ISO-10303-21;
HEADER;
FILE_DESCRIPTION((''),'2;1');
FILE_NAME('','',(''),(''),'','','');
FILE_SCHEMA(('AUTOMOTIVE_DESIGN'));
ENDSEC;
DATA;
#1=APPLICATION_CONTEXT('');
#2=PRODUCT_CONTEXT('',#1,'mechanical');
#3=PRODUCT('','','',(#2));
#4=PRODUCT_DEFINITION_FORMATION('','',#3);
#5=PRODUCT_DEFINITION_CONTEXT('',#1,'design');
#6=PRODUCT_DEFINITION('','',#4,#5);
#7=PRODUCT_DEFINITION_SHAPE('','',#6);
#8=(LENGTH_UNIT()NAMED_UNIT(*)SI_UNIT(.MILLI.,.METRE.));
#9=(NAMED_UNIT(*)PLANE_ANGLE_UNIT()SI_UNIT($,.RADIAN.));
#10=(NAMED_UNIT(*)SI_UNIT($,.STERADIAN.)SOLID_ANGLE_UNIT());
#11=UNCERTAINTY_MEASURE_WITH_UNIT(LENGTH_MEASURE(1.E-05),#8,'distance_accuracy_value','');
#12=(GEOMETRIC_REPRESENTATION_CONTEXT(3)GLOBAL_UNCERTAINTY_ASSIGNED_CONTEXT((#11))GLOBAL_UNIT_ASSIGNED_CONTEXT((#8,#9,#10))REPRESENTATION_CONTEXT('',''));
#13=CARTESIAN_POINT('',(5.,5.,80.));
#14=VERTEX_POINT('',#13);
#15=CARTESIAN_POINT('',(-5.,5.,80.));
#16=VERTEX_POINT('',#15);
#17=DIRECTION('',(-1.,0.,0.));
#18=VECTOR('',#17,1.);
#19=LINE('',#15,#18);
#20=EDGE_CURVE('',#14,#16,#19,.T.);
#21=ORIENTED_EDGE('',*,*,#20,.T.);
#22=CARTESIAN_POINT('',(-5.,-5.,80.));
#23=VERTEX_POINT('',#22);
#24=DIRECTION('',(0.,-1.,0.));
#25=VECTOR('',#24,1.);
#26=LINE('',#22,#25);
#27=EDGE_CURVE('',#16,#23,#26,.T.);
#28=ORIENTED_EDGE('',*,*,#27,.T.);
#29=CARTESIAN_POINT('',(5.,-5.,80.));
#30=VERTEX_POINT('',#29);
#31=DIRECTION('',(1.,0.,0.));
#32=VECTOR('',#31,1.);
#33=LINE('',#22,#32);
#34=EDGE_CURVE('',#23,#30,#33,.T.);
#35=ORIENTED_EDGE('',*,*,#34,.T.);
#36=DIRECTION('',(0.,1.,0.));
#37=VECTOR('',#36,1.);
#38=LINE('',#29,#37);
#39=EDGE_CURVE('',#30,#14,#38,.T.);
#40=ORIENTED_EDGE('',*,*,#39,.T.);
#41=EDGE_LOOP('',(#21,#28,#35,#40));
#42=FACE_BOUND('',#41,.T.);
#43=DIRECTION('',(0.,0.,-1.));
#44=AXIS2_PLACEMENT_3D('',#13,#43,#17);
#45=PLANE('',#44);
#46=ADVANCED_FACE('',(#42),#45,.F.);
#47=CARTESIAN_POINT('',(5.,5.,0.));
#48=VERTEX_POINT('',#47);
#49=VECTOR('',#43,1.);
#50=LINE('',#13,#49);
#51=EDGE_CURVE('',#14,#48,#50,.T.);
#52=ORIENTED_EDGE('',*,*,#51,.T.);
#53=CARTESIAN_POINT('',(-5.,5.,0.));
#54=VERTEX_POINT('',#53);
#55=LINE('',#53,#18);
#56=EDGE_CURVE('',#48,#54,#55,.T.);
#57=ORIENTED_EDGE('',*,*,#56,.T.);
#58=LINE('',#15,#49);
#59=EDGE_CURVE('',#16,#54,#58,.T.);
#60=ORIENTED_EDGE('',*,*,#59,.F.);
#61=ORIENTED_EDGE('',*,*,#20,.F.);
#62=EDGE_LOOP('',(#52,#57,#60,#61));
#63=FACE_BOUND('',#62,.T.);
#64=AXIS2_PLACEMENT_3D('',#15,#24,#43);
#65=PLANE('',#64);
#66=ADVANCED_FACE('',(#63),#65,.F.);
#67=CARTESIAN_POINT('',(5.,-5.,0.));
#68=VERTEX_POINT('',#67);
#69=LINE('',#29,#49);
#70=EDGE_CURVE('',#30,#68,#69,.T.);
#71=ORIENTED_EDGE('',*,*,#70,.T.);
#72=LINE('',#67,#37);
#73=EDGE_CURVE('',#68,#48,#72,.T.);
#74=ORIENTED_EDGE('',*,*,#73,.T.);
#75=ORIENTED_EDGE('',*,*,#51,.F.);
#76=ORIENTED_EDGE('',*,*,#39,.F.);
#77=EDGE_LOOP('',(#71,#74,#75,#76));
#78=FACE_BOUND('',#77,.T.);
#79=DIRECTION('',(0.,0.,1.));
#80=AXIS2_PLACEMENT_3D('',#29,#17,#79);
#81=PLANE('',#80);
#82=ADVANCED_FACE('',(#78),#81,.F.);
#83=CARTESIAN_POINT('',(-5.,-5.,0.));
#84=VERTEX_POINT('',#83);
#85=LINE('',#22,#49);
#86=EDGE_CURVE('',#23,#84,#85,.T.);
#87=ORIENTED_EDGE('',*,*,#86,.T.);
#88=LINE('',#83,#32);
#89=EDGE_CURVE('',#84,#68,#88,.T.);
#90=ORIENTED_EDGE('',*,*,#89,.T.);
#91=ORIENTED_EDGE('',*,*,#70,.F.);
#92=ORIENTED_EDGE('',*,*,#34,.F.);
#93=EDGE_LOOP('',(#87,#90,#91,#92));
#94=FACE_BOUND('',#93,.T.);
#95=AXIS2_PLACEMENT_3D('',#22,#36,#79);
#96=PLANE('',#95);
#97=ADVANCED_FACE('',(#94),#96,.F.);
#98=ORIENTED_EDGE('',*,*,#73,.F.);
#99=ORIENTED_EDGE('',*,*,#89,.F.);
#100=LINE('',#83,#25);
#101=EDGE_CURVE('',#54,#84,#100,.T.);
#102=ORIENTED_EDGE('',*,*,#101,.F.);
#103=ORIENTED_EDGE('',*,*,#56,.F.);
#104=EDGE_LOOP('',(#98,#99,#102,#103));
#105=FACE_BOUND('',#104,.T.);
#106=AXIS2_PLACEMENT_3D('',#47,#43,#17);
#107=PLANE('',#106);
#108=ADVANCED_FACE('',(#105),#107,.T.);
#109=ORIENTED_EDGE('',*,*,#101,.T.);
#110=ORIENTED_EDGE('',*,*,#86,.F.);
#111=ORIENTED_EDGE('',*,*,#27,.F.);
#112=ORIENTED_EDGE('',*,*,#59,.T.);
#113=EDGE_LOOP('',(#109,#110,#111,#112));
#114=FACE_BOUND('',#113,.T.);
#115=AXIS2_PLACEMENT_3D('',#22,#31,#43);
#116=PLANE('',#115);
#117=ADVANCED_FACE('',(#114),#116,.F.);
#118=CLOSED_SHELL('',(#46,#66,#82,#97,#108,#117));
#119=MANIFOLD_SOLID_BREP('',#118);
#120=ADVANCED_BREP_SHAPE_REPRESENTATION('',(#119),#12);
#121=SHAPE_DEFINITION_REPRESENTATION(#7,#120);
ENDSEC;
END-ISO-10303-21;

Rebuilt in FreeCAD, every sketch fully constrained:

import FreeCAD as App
import Part
import Sketcher

V = App.Vector
Q = App.Units.Quantity

doc = App.newDocument("Part")
params = doc.addObject("Spreadsheet::Sheet", "Params")
for row, (alias, value) in enumerate([
    ("sketch1_width", "10 mm"),
    ("pad1_length", "80 mm"),
], start=1):
    params.set(f"A{row}", alias)
    params.set(f"B{row}", "=" + value)
    params.setAlias(f"B{row}", alias)

body = doc.addObject("PartDesign::Body", "Body")

# Sketch on XY plane
sketch1 = body.newObject("Sketcher::SketchObject", "Sketch")
sketch1.AttachmentSupport = (doc.getObject("XY_Plane"), [""])
sketch1.MapMode = "FlatFace"
sketch1.addGeometry([
    Part.LineSegment(V(-5, 5, 0), V(-5, -5, 0)),
    Part.LineSegment(V(-5, -5, 0), V(5, -5, 0)),
    Part.LineSegment(V(5, -5, 0), V(5, 5, 0)),
    Part.LineSegment(V(5, 5, 0), V(-5, 5, 0)),
], False)
sketch1.addConstraint([
    Sketcher.Constraint("Coincident", 0, 2, 1, 1),
    Sketcher.Constraint("Coincident", 1, 2, 2, 1),
    Sketcher.Constraint("Coincident", 2, 2, 3, 1),
    Sketcher.Constraint("Coincident", 3, 2, 0, 1),
    Sketcher.Constraint("Vertical", 0),
    Sketcher.Constraint("Horizontal", 1),
    Sketcher.Constraint("Vertical", 2),
    Sketcher.Constraint("Horizontal", 3),
    Sketcher.Constraint("Symmetric", 0, 2, 2, 2, -1, 1),
    Sketcher.Constraint("Equal", 3, 0),
    Sketcher.Constraint("DistanceX", 1, 1, 1, 2, Q("10 mm")),
])
sketch1.setExpression("Constraints[10]", "Params.sketch1_width")
pad1 = body.newObject("PartDesign::Pad", "Pad")
pad1.Profile = sketch1
pad1.setExpression("Length", "Params.pad1_length")

doc.recompute()
